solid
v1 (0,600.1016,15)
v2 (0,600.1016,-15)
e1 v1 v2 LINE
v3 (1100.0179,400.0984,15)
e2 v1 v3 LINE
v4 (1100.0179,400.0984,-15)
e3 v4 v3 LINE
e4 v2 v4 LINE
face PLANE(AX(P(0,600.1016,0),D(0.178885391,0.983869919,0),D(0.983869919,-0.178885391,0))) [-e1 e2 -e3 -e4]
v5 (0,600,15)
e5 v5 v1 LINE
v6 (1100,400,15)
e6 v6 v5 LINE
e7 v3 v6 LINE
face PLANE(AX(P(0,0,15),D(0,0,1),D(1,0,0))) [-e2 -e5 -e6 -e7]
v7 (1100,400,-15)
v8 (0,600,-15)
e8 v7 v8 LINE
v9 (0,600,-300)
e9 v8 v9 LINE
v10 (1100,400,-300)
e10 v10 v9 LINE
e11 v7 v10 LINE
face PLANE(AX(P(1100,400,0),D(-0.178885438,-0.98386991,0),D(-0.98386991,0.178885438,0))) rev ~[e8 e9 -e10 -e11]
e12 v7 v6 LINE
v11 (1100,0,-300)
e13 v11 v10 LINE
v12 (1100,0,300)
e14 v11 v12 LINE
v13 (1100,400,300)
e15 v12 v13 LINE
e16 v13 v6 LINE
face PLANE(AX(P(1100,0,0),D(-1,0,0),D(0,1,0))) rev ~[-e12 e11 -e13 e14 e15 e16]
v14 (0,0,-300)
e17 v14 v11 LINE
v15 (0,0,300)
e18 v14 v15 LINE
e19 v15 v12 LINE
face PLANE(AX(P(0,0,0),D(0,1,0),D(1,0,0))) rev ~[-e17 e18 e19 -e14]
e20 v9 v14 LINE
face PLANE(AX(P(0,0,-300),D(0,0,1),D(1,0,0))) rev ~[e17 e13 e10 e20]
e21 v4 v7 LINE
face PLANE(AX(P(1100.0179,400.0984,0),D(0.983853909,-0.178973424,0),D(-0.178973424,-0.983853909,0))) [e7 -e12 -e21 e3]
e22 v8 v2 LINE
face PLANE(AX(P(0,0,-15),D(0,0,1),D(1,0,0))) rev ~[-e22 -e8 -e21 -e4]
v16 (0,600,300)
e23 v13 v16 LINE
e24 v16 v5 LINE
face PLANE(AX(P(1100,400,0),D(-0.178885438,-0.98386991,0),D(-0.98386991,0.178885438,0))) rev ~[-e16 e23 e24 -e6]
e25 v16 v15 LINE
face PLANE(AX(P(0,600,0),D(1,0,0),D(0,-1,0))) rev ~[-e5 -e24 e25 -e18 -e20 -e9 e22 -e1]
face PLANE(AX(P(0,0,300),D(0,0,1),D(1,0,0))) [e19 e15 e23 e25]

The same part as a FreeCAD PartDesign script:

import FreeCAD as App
import Part
import Sketcher
from FreeCAD import Vector
Q = App.Units.Quantity

doc = App.newDocument("Part")
body = doc.addObject("PartDesign::Body", "Body")

sketch1 = body.newObject("Sketcher::SketchObject", "Sketch")
sketch1.AttachmentSupport = (doc.getObject("XY_Plane"), [""])
sketch1.MapMode = "FlatFace"
sketch1.addGeometry(Part.LineSegment(Vector(0, 600, 0), Vector(0, 0, 0)), False)
sketch1.addGeometry(Part.LineSegment(Vector(0, 0, 0), Vector(1100, 0, 0)), False)
sketch1.addGeometry(Part.LineSegment(Vector(1100, 0, 0), Vector(1100, 400, 0)), False)
sketch1.addGeometry(Part.LineSegment(Vector(1100, 400, 0), Vector(0, 600, 0)), False)
sketch1.addConstraint(Sketcher.Constraint("Coincident", 0, 2, 1, 1))
sketch1.addConstraint(Sketcher.Constraint("Coincident", 1, 2, 2, 1))
sketch1.addConstraint(Sketcher.Constraint("Coincident", 2, 2, 3, 1))
sketch1.addConstraint(Sketcher.Constraint("Coincident", 3, 2, 0, 1))
sketch1.addConstraint(Sketcher.Constraint("Vertical", 0))
sketch1.addConstraint(Sketcher.Constraint("Horizontal", 1))
sketch1.addConstraint(Sketcher.Constraint("Vertical", 2))
sketch1.addConstraint(Sketcher.Constraint("Coincident", 0, 2, -1, 1))
sketch1.addConstraint(Sketcher.Constraint("DistanceX", 1, 1, 1, 2, Q("1100 mm")))
sketch1.addConstraint(Sketcher.Constraint("DistanceY", 0, 2, 0, 1, Q("600 mm")))
sketch1.addConstraint(Sketcher.Constraint("DistanceY", 2, 1, 2, 2, Q("400 mm")))
pad1 = body.newObject("PartDesign::Pad", "Pad")
pad1.Profile = sketch1
pad1.Length = 600
pad1.Midplane = True

sketch2 = body.newObject("Sketcher::SketchObject", "Sketch001")
sketch2.AttachmentSupport = (doc.getObject("XY_Plane"), [""])
sketch2.MapMode = "FlatFace"
sketch2.addGeometry(Part.LineSegment(Vector(0, 600, 0), Vector(1100, 400, 0)), False)
sketch2.addGeometry(Part.LineSegment(Vector(1100, 400, 0), Vector(1100.02, 400.1, 0)), False)
sketch2.addGeometry(Part.LineSegment(Vector(1100.02, 400.1, 0), Vector(0, 600.1, 0)), False)
sketch2.addGeometry(Part.LineSegment(Vector(0, 600.1, 0), Vector(0, 600, 0)), False)
sketch2.addConstraint(Sketcher.Constraint("Coincident", 0, 2, 1, 1))
sketch2.addConstraint(Sketcher.Constraint("Coincident", 1, 2, 2, 1))
sketch2.addConstraint(Sketcher.Constraint("Coincident", 2, 2, 3, 1))
sketch2.addConstraint(Sketcher.Constraint("Coincident", 3, 2, 0, 1))
sketch2.addConstraint(Sketcher.Constraint("Vertical", 3))
sketch2.addConstraint(Sketcher.Constraint("PointOnObject", 2, 2, -2))
sketch2.addConstraint(Sketcher.Constraint("Perpendicular", 0, 1))
sketch2.addConstraint(Sketcher.Constraint("Parallel", 0, 2))
sketch2.addConstraint(Sketcher.Constraint("Distance", 1, Q("0.1 mm")))
sketch2.addConstraint(Sketcher.Constraint("DistanceX", -1, 1, 0, 2, Q("1100 mm")))
sketch2.addConstraint(Sketcher.Constraint("DistanceY", -1, 1, 0, 2, Q("400 mm")))
sketch2.addConstraint(Sketcher.Constraint("DistanceY", -1, 1, 3, 2, Q("600 mm")))
pad2 = body.newObject("PartDesign::Pad", "Pad001")
pad2.Profile = sketch2
pad2.Length = 30
pad2.Midplane = True

doc.recompute()
